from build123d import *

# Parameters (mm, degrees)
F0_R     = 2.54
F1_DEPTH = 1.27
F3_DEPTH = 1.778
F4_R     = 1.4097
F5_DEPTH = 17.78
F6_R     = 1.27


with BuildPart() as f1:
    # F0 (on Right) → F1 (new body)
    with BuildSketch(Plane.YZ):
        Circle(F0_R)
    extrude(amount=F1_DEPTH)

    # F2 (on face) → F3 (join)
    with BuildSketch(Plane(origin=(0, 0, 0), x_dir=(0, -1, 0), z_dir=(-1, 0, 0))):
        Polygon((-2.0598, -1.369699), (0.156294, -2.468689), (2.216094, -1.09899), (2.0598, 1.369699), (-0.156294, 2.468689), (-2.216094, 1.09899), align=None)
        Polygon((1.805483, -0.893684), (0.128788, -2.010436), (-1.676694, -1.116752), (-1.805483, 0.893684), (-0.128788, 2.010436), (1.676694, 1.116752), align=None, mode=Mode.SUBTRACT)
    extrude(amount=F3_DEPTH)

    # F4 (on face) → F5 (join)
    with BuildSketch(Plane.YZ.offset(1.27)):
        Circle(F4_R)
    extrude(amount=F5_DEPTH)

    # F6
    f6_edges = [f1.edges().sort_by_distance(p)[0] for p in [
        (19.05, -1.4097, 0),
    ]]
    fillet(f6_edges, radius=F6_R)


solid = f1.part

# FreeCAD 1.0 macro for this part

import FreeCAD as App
import Part
import Sketcher
from FreeCAD import Vector
Q = App.Units.Quantity


def edges_at(feature, points):
    """Names of the edges that pass closest to the given points."""
    edges = feature.Shape.Edges
    near = lambda p: min(range(len(edges)), key=lambda i: edges[i].distToShape(Part.Vertex(*p))[0])
    return sorted({f"Edge{near(p) + 1}" for p in points})

doc = App.newDocument("Part")
body = doc.addObject("PartDesign::Body", "Body")

sketch1 = doc.addObject("Sketcher::SketchObject", "Sketch")
body.addObject(sketch1)
sketch1.AttachmentSupport = (doc.YZ_Plane, [""])
sketch1.MapMode = "FlatFace"
sketch1.addGeometry(Part.Circle(Vector(0, 0, 0), Vector(0, 0, 1), 2.5), False)
sketch1.addConstraint([
    Sketcher.Constraint("Coincident", 0, 3, -1, 1),
    Sketcher.Constraint("Diameter", 0, Q("0.2 in")),
])
pad1 = doc.addObject("PartDesign::Pad", "Pad")
body.addObject(pad1)
pad1.Profile = sketch1
pad1.Length = Q("0.05 in")

sketch2 = doc.addObject("Sketcher::SketchObject", "Sketch001")
body.addObject(sketch2)
sketch2.AttachmentSupport = (doc.YZ_Plane, [""])
sketch2.MapMode = "FlatFace"
sketch2.addGeometry([
    Part.LineSegment(Vector(2.1, -1.4, 0), Vector(-0.2, -2.5, 0)),
    Part.LineSegment(Vector(-0.2, -2.5, 0), Vector(-2.2, -1.1, 0)),
    Part.LineSegment(Vector(-2.2, -1.1, 0), Vector(-2.1, 1.4, 0)),
    Part.LineSegment(Vector(-2.1, 1.4, 0), Vector(0.2, 2.5, 0)),
    Part.LineSegment(Vector(0.2, 2.5, 0), Vector(2.2, 1.1, 0)),
    Part.LineSegment(Vector(2.2, 1.1, 0), Vector(2.1, -1.4, 0)),
    Part.LineSegment(Vector(-1.7, 1.1, 0), Vector(-1.8, -0.9, 0)),
    Part.LineSegment(Vector(-1.8, -0.9, 0), Vector(-0.1, -2, 0)),
    Part.LineSegment(Vector(-0.1, -2, 0), Vector(1.7, -1.1, 0)),
    Part.LineSegment(Vector(1.7, -1.1, 0), Vector(1.8, 0.9, 0)),
    Part.LineSegment(Vector(1.8, 0.9, 0), Vector(0.1, 2, 0)),
    Part.LineSegment(Vector(0.1, 2, 0), Vector(-1.7, 1.1, 0)),
], False)
sketch2.addConstraint([
    Sketcher.Constraint("Coincident", 0, 2, 1, 1),
    Sketcher.Constraint("Coincident", 1, 2, 2, 1),
    Sketcher.Constraint("Coincident", 2, 2, 3, 1),
    Sketcher.Constraint("Coincident", 3, 2, 4, 1),
    Sketcher.Constraint("Coincident", 4, 2, 5, 1),
    Sketcher.Constraint("Coincident", 5, 2, 0, 1),
    Sketcher.Constraint("Coincident", 6, 2, 7, 1),
    Sketcher.Constraint("Coincident", 7, 2, 8, 1),
    Sketcher.Constraint("Coincident", 8, 2, 9, 1),
    Sketcher.Constraint("Coincident", 9, 2, 10, 1),
    Sketcher.Constraint("Coincident", 10, 2, 11, 1),
    Sketcher.Constraint("Coincident", 11, 2, 6, 1),
    Sketcher.Constraint("Symmetric", 0, 2, 3, 2, -1, 1),
    Sketcher.Constraint("Symmetric", 1, 2, 4, 2, -1, 1),
    Sketcher.Constraint("Symmetric", 2, 2, 5, 2, -1, 1),
    Sketcher.Constraint("Symmetric", 6, 2, 9, 2, -1, 1),
    Sketcher.Constraint("Symmetric", 7, 2, 10, 2, -1, 1),
    Sketcher.Constraint("Symmetric", 8, 2, 11, 2, -1, 1),
    Sketcher.Constraint("Equal", 0, 1),
    Sketcher.Constraint("Equal", 1, 2),
    Sketcher.Constraint("Equal", 6, 7),
    Sketcher.Constraint("Equal", 7, 8),
    Sketcher.Constraint("DistanceX", 2, 2, -1, 1, 2.0598),
    Sketcher.Constraint("DistanceY", -1, 1, 2, 2, 1.369699),
    Sketcher.Constraint("DistanceX", 1, 2, 0, 2, 2.0598),
    Sketcher.Constraint("DistanceY", 0, 2, 1, 2, 1.369699),
    Sketcher.Constraint("DistanceX", 8, 2, 4, 2, 0.5394),
    Sketcher.Constraint("DistanceX", 7, 2, -1, 1, 0.128788),
    Sketcher.Constraint("DistanceX", 1, 2, 6, 2, 0.410611),
    Sketcher.Constraint("DistanceY", 8, 2, 4, 2, 2.215742),
])
pad2 = doc.addObject("PartDesign::Pad", "Pad001")
body.addObject(pad2)
pad2.Profile = sketch2
pad2.Length = Q("0.07 in")
pad2.Reversed = True

sketch3 = doc.addObject("Sketcher::SketchObject", "Sketch002")
body.addObject(sketch3)
sketch3.AttachmentSupport = (doc.YZ_Plane, [""])
sketch3.MapMode = "FlatFace"
sketch3.AttachmentOffset = App.Placement(Vector(0, 0, 0.05 * 25.4), App.Rotation())
sketch3.addGeometry(Part.Circle(Vector(0, 0, 0), Vector(0, 0, 1), 1.4), False)
sketch3.addConstraint([
    Sketcher.Constraint("Coincident", 0, 3, -1, 1),
    Sketcher.Constraint("Diameter", 0, Q("0.111 in")),
])
pad3 = doc.addObject("PartDesign::Pad", "Pad002")
body.addObject(pad3)
pad3.Profile = sketch3
pad3.Length = Q("0.7 in")
doc.recompute()

fillet = doc.addObject("PartDesign::Fillet", "Fillet")
body.addObject(fillet)
fillet.Base = (pad3, edges_at(pad3, [(19.05, -1.41, 0)]))
fillet.Radius = Q("0.05 in")

doc.recompute()
